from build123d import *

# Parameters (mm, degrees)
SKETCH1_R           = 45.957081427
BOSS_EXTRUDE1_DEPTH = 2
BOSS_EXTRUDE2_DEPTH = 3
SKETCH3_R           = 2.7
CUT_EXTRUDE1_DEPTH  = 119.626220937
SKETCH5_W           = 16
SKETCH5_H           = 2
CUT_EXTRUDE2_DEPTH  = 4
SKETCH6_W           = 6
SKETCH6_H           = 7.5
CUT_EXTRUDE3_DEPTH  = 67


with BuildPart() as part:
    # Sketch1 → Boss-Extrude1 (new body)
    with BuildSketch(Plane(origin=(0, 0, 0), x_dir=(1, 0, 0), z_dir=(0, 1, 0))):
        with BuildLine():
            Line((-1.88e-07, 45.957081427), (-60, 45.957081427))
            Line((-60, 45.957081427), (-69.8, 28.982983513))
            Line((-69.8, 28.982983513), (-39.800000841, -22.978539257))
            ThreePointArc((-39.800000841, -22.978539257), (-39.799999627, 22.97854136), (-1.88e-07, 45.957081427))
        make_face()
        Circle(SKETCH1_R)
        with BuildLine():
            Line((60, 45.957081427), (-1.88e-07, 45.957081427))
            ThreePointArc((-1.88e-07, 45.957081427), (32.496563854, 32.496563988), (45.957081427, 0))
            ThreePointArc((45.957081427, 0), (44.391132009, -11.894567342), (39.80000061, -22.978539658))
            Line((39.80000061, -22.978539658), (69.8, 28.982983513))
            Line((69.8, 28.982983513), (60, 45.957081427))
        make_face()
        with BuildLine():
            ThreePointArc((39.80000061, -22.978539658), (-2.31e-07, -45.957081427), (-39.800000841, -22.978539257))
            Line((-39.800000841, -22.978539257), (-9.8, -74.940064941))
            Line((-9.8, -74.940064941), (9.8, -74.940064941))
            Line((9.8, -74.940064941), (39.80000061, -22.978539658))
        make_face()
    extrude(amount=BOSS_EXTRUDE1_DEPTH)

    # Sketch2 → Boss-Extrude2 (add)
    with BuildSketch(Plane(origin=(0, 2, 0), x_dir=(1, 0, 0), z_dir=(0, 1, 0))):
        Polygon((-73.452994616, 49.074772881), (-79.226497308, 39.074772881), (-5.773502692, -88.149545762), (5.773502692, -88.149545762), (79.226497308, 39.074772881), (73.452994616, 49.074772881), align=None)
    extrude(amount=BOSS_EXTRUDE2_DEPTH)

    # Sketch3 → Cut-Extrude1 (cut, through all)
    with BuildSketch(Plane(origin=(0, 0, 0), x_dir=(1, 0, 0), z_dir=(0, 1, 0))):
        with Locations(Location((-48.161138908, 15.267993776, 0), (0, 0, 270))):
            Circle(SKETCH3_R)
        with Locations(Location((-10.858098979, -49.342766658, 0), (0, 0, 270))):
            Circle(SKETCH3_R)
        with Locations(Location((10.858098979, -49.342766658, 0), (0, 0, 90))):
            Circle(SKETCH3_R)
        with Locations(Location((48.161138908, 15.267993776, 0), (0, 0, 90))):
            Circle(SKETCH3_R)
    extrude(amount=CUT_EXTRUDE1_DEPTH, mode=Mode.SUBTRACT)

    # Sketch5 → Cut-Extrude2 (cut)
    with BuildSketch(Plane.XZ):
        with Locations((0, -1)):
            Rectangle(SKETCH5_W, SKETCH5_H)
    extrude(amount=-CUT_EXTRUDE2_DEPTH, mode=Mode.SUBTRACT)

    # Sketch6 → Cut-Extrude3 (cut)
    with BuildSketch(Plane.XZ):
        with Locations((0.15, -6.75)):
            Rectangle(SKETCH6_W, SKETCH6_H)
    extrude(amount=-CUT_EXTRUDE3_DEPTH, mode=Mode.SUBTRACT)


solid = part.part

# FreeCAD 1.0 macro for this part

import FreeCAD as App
import Part
import Sketcher

V = App.Vector
Q = App.Units.Quantity

doc = App.newDocument("Part")
params = doc.addObject("Spreadsheet::Sheet", "Params")
for row, (alias, value) in enumerate([
    ("sketch1_width", "120 mm"),
    ("sketch1_length", "59.999998 mm"),
    ("sketch1_length2", "60.000002 mm"),
    ("sketch1_width2", "19.6 mm"),
    ("pad1_length", "2 mm"),
    ("pad2_length", "3 mm"),
    ("sketch3_diameter", "5.4 mm"),
    ("sketch4_width", "16 mm"),
    ("sketch4_height", "2 mm"),
    ("pocket2_length", "4 mm"),
    ("sketch5_width", "6 mm"),
    ("sketch5_height", "7.5 mm"),
    ("pocket3_length", "67 mm"),
], start=1):
    params.set(f"A{row}", alias)
    params.set(f"B{row}", "=" + value)
    params.setAlias(f"B{row}", alias)

body = doc.addObject("PartDesign::Body", "Body")

sketch1 = doc.addObject("Sketcher::SketchObject", "Sketch")
body.addObject(sketch1)
sketch1.AttachmentSupport = (doc.XZ_Plane, [""])
sketch1.MapMode = "FlatFace"
sketch1.addGeometry([
    Part.LineSegment(V(-60, -46, 0), V(-70, -29, 0)),
    Part.LineSegment(V(-70, -29, 0), V(-40, 23, 0)),
    Part.LineSegment(V(-40, 23, 0), V(-10, 75, 0)),
    Part.LineSegment(V(-10, 75, 0), V(10, 75, 0)),
    Part.LineSegment(V(10, 75, 0), V(40, 23, 0)),
    Part.LineSegment(V(40, 23, 0), V(70, -29, 0)),
    Part.LineSegment(V(70, -29, 0), V(60, -46, 0)),
    Part.LineSegment(V(60, -46, 0), V(-60, -46, 0)),
], False)
sketch1.addConstraint([
    Sketcher.Constraint("Coincident", 0, 2, 1, 1),
    Sketcher.Constraint("Coincident", 1, 2, 2, 1),
    Sketcher.Constraint("Coincident", 2, 2, 3, 1),
    Sketcher.Constraint("Coincident", 3, 2, 4, 1),
    Sketcher.Constraint("Coincident", 4, 2, 5, 1),
    Sketcher.Constraint("Coincident", 5, 2, 6, 1),
    Sketcher.Constraint("Coincident", 6, 2, 7, 1),
    Sketcher.Constraint("Coincident", 7, 2, 0, 1),
    Sketcher.Constraint("Horizontal", 3),
    Sketcher.Constraint("Horizontal", 7),
    Sketcher.Constraint("Symmetric", 1, 2, 4, 2, -2),
    Sketcher.Constraint("Symmetric", 0, 2, 5, 2, -2),
    Sketcher.Constraint("Parallel", 1, 2),
    Sketcher.Constraint("Parallel", 0, 4),
    Sketcher.Constraint("Parallel", 4, 5),
    Sketcher.Constraint("Parallel", 2, 6),
    Sketcher.Constraint("DistanceX", 7, 2, 7, 1, 120.0),
    Sketcher.Constraint("Angle", 0, Q("120 deg")),
    Sketcher.Constraint("Distance", 1, 59.999998),
    Sketcher.Constraint("Distance", 2, 60.000002),
    Sketcher.Constraint("DistanceX", 3, 1, 3, 2, 19.6),
    Sketcher.Constraint("DistanceY", -1, 1, 1, 2, 22.978539),
])
sketch1.setExpression("Constraints[16]", "Params.sketch1_width")
sketch1.setExpression("Constraints[18]", "Params.sketch1_length")
sketch1.setExpression("Constraints[19]", "Params.sketch1_length2")
sketch1.setExpression("Constraints[20]", "Params.sketch1_width2")
pad1 = doc.addObject("PartDesign::Pad", "Pad")
body.addObject(pad1)
pad1.Profile = sketch1
pad1.setExpression("Length", "Params.pad1_length")
pad1.Reversed = True

sketch2 = doc.addObject("Sketcher::SketchObject", "Sketch001")
body.addObject(sketch2)
sketch2.AttachmentSupport = (doc.XZ_Plane, [""])
sketch2.MapMode = "FlatFace"
sketch2.AttachmentOffset = App.Placement(V(0, 0, -2), App.Rotation())
sketch2.addGeometry([
    Part.LineSegment(V(-73, -49, 0), V(-79, -39, 0)),
    Part.LineSegment(V(-79, -39, 0), V(-6, 88, 0)),
    Part.LineSegment(V(-6, 88, 0), V(6, 88, 0)),
    Part.LineSegment(V(6, 88, 0), V(79, -39, 0)),
    Part.LineSegment(V(79, -39, 0), V(73, -49, 0)),
    Part.LineSegment(V(73, -49, 0), V(-73, -49, 0)),
], False)
sketch2.addConstraint([
    Sketcher.Constraint("Coincident", 0, 2, 1, 1),
    Sketcher.Constraint("Coincident", 1, 2, 2, 1),
    Sketcher.Constraint("Coincident", 2, 2, 3, 1),
    Sketcher.Constraint("Coincident", 3, 2, 4, 1),
    Sketcher.Constraint("Coincident", 4, 2, 5, 1),
    Sketcher.Constraint("Coincident", 5, 2, 0, 1),
    Sketcher.Constraint("Horizontal", 2),
    Sketcher.Constraint("Horizontal", 5),
    Sketcher.Constraint("Symmetric", 0, 2, 3, 2, -2),
    Sketcher.Constraint("Parallel", 0, 3),
    Sketcher.Constraint("Parallel", 1, 4),
    Sketcher.Constraint("Equal", 1, 3),
    Sketcher.Constraint("Angle", 0, Q("120 deg")),
    Sketcher.Constraint("DistanceX", 0, 2, 2, 2, 85.0),
    Sketcher.Constraint("DistanceY", 4, 2, 3, 2, 10.0),
    Sketcher.Constraint("DistanceX", 5, 2, 5, 1, 146.905989),
    Sketcher.Constraint("DistanceY", 0, 2, -1, 1, 39.074773),
])
pad2 = doc.addObject("PartDesign::Pad", "Pad001")
body.addObject(pad2)
pad2.Profile = sketch2
pad2.setExpression("Length", "Params.pad2_length")
pad2.Reversed = True

sketch3 = doc.addObject("Sketcher::SketchObject", "Sketch002")
body.addObject(sketch3)
sketch3.AttachmentSupport = (doc.XZ_Plane, [""])
sketch3.MapMode = "FlatFace"
sketch3.addGeometry([
    Part.Circle(V(-48.2, -15.3, 0), V(0, 0, 1), 2.7),
    Part.Circle(V(-10.9, 49.3, 0), V(0, 0, 1), 2.7),
    Part.Circle(V(10.9, 49.3, 0), V(0, 0, 1), 2.7),
    Part.Circle(V(48.2, -15.3, 0), V(0, 0, 1), 2.7),
], False)
sketch3.addConstraint([
    Sketcher.Constraint("Equal", 0, 1),
    Sketcher.Constraint("Equal", 1, 2),
    Sketcher.Constraint("Equal", 2, 3),
    Sketcher.Constraint("Symmetric", 1, 3, 2, 3, -2),
    Sketcher.Constraint("Symmetric", 0, 3, 3, 3, -2),
    Sketcher.Constraint("Diameter", 0, 5.4),
    Sketcher.Constraint("DistanceX", 1, 3, -1, 1, 10.858099),
    Sketcher.Constraint("DistanceX", 0, 3, -1, 1, 48.161139),
    Sketcher.Constraint("DistanceY", 0, 3, 1, 3, 64.61076),
    Sketcher.Constraint("DistanceY", 0, 3, -1, 1, 15.267994),
])
sketch3.setExpression("Constraints[5]", "Params.sketch3_diameter")
pocket1 = doc.addObject("PartDesign::Pocket", "Pocket")
body.addObject(pocket1)
pocket1.Profile = sketch3
pocket1.Type = "ThroughAll"

sketch4 = doc.addObject("Sketcher::SketchObject", "Sketch003")
body.addObject(sketch4)
sketch4.AttachmentSupport = (doc.XZ_Plane, [""])
sketch4.MapMode = "FlatFace"
sketch4.addGeometry([
    Part.LineSegment(V(-8, 0, 0), V(-8, -2, 0)),
    Part.LineSegment(V(-8, -2, 0), V(8, -2, 0)),
    Part.LineSegment(V(8, -2, 0), V(8, 0, 0)),
    Part.LineSegment(V(8, 0, 0), V(-8, 0, 0)),
], False)
sketch4.addConstraint([
    Sketcher.Constraint("Coincident", 0, 2, 1, 1),
    Sketcher.Constraint("Coincident", 1, 2, 2, 1),
    Sketcher.Constraint("Coincident", 2, 2, 3, 1),
    Sketcher.Constraint("Coincident", 3, 2, 0, 1),
    Sketcher.Constraint("Vertical", 0),
    Sketcher.Constraint("Horizontal", 1),
    Sketcher.Constraint("Vertical", 2),
    Sketcher.Constraint("Horizontal", 3),
    Sketcher.Constraint("Symmetric", 2, 2, 3, 2, -1, 1),
    Sketcher.Constraint("DistanceX", 1, 1, 1, 2, 16.0),
    Sketcher.Constraint("DistanceY", 0, 2, 0, 1, 2.0),
])
sketch4.setExpression("Constraints[9]", "Params.sketch4_width")
sketch4.setExpression("Constraints[10]", "Params.sketch4_height")
pocket2 = doc.addObject("PartDesign::Pocket", "Pocket001")
body.addObject(pocket2)
pocket2.Profile = sketch4
pocket2.setExpression("Length", "Params.pocket2_length")

sketch5 = doc.addObject("Sketcher::SketchObject", "Sketch004")
body.addObject(sketch5)
sketch5.AttachmentSupport = (doc.XZ_Plane, [""])
sketch5.MapMode = "FlatFace"
sketch5.addGeometry([
    Part.LineSegment(V(-3, -3, 0), V(-3, -10, 0)),
    Part.LineSegment(V(-3, -10, 0), V(3, -10, 0)),
    Part.LineSegment(V(3, -10, 0), V(3, -3, 0)),
    Part.LineSegment(V(3, -3, 0), V(-3, -3, 0)),
], False)
sketch5.addConstraint([
    Sketcher.Constraint("Coincident", 0, 2, 1, 1),
    Sketcher.Constraint("Coincident", 1, 2, 2, 1),
    Sketcher.Constraint("Coincident", 2, 2, 3, 1),
    Sketcher.Constraint("Coincident", 3, 2, 0, 1),
    Sketcher.Constraint("Vertical", 0),
    Sketcher.Constraint("Horizontal", 1),
    Sketcher.Constraint("Vertical", 2),
    Sketcher.Constraint("Horizontal", 3),
    Sketcher.Constraint("DistanceX", 1, 1, 1, 2, 6.0),
    Sketcher.Constraint("DistanceY", 0, 2, 0, 1, 7.5),
    Sketcher.Constraint("DistanceY", 2, 2, -1, 1, 3.0),
    Sketcher.Constraint("DistanceX", 0, 2, -1, 1, 2.85),
])
sketch5.setExpression("Constraints[8]", "Params.sketch5_width")
sketch5.setExpression("Constraints[9]", "Params.sketch5_height")
pocket3 = doc.addObject("PartDesign::Pocket", "Pocket002")
body.addObject(pocket3)
pocket3.Profile = sketch5
pocket3.setExpression("Length", "Params.pocket3_length")

doc.recompute()
